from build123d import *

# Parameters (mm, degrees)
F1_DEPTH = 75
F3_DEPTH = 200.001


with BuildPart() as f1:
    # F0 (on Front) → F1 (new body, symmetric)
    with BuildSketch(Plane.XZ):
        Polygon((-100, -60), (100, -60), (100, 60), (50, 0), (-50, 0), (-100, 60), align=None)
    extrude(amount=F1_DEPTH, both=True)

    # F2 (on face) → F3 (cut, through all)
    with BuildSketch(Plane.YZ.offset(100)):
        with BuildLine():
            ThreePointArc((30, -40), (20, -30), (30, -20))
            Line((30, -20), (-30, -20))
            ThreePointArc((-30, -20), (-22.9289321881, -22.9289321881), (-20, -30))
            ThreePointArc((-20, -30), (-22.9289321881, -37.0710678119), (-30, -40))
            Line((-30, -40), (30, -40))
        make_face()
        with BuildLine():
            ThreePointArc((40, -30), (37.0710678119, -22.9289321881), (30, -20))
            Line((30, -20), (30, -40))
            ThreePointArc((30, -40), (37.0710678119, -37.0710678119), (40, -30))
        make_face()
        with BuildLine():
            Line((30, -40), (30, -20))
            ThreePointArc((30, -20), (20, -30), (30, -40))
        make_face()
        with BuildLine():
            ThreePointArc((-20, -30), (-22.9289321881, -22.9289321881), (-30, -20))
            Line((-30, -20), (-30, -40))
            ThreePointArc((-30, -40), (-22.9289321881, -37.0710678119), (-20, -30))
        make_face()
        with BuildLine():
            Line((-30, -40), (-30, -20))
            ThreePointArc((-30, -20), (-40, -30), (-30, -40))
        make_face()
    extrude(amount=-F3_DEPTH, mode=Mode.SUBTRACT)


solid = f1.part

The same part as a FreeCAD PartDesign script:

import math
import FreeCAD as App
import Part
import Sketcher
from FreeCAD import Vector
Q = App.Units.Quantity


def add_polygon(sketch, points):
    """Adds a closed chain of lines whose ends are joined by coincident constraints."""
    first, n = sketch.GeometryCount, len(points)
    for a, b in zip(points, points[1:] + points[:1]):
        sketch.addGeometry(Part.LineSegment(App.Vector(*a, 0), App.Vector(*b, 0)), False)
    for i in range(n):
        sketch.addConstraint(Sketcher.Constraint("Coincident", first + i, 2, first + (i + 1) % n, 1))

doc = App.newDocument("Part")
params = doc.addObject("Spreadsheet::Sheet", "Params")
for row, (alias, value) in enumerate([
    ("sketch1_width", "200 mm"),
    ("sketch1_width2", "100 mm"),
    ("sketch1_height", "120 mm"),
    ("pad1_length", "150 mm"),
    ("sketch2_radius", "10 mm"),
    ("sketch2_width", "60 mm"),
], start=1):
    params.set(f"A{row}", alias)
    params.set(f"B{row}", "=" + value)
    params.setAlias(f"B{row}", alias)

body = doc.addObject("PartDesign::Body", "Body")

sketch1 = doc.addObject("Sketcher::SketchObject", "Sketch")
body.addObject(sketch1)
sketch1.AttachmentSupport = (doc.XZ_Plane, [""])
sketch1.MapMode = "FlatFace"
add_polygon(sketch1, [(-100, -60), (100, -60), (100, 60), (50, 0), (-50, 0), (-100, 60)])
sketch1.addConstraint(Sketcher.Constraint("Horizontal", 0))
sketch1.addConstraint(Sketcher.Constraint("Vertical", 1))
sketch1.addConstraint(Sketcher.Constraint("Horizontal", 3))
sketch1.addConstraint(Sketcher.Constraint("Vertical", 5))
sketch1.addConstraint(Sketcher.Constraint("Symmetric", 2, 2, 3, 2, -1, 1))
sketch1.addConstraint(Sketcher.Constraint("Symmetric", 0, 2, 4, 2, -1, 1))
sketch1.addConstraint(Sketcher.Constraint("Horizontal", 1, 2, 4, 2))
sketch1.addConstraint(Sketcher.Constraint("DistanceX", 0, 1, 0, 2, Q("200 mm")))
sketch1.addConstraint(Sketcher.Constraint("DistanceX", 3, 2, 3, 1, Q("100 mm")))
sketch1.addConstraint(Sketcher.Constraint("DistanceY", 1, 1, 1, 2, Q("120 mm")))
sketch1.setExpression("Constraints[13]", "Params.sketch1_width")
sketch1.setExpression("Constraints[14]", "Params.sketch1_width2")
sketch1.setExpression("Constraints[15]", "Params.sketch1_height")
pad1 = doc.addObject("PartDesign::Pad", "Pad")
body.addObject(pad1)
pad1.Profile = sketch1
pad1.setExpression("Length", "Params.pad1_length")
pad1.Midplane = True

sketch2 = doc.addObject("Sketcher::SketchObject", "Sketch001")
body.addObject(sketch2)
sketch2.AttachmentSupport = (doc.YZ_Plane, [""])
sketch2.MapMode = "FlatFace"
sketch2.AttachmentOffset = App.Placement(Vector(0, 0, 100), App.Rotation())
sketch2.addGeometry(Part.LineSegment(Vector(30, -20, 0), Vector(-30, -20, 0)), False)
sketch2.addGeometry(Part.ArcOfCircle(Part.Circle(Vector(-30, -30, 0), Vector(0, 0, 1), 10), math.radians(90), math.radians(270)), False)
sketch2.addGeometry(Part.LineSegment(Vector(-30, -40, 0), Vector(30, -40, 0)), False)
sketch2.addGeometry(Part.ArcOfCircle(Part.Circle(Vector(30, -30, 0), Vector(0, 0, 1), 10), math.radians(-90), math.radians(0)), False)
sketch2.addGeometry(Part.ArcOfCircle(Part.Circle(Vector(30, -30, 0), Vector(0, 0, 1), 10), math.radians(0), math.radians(90)), False)
sketch2.addConstraint(Sketcher.Constraint("Tangent", 0, 2, 1, 1))
sketch2.addConstraint(Sketcher.Constraint("Tangent", 1, 2, 2, 1))
sketch2.addConstraint(Sketcher.Constraint("Tangent", 2, 2, 3, 1))
sketch2.addConstraint(Sketcher.Constraint("Tangent", 3, 2, 4, 1))
sketch2.addConstraint(Sketcher.Constraint("Tangent", 4, 2, 0, 1))
sketch2.addConstraint(Sketcher.Constraint("Horizontal", 0))
sketch2.addConstraint(Sketcher.Constraint("Horizontal", 2))
sketch2.addConstraint(Sketcher.Constraint("Equal", 1, 3))
sketch2.addConstraint(Sketcher.Constraint("Horizontal", 4, 3, 3, 2))
sketch2.addConstraint(Sketcher.Constraint("Radius", 1, Q("10 mm")))
sketch2.addConstraint(Sketcher.Constraint("DistanceX", 0, 2, 0, 1, Q("60 mm")))
sketch2.addConstraint(Sketcher.Constraint("DistanceX", 1, 3, -1, 1, Q("30 mm")))
sketch2.addConstraint(Sketcher.Constraint("DistanceY", 1, 3, -1, 1, Q("30 mm")))
sketch2.setExpression("Constraints[9]", "Params.sketch2_radius")
sketch2.setExpression("Constraints[10]", "Params.sketch2_width")
pocket1 = doc.addObject("PartDesign::Pocket", "Pocket")
body.addObject(pocket1)
pocket1.Profile = sketch2
pocket1.Type = "ThroughAll"

doc.recompute()
